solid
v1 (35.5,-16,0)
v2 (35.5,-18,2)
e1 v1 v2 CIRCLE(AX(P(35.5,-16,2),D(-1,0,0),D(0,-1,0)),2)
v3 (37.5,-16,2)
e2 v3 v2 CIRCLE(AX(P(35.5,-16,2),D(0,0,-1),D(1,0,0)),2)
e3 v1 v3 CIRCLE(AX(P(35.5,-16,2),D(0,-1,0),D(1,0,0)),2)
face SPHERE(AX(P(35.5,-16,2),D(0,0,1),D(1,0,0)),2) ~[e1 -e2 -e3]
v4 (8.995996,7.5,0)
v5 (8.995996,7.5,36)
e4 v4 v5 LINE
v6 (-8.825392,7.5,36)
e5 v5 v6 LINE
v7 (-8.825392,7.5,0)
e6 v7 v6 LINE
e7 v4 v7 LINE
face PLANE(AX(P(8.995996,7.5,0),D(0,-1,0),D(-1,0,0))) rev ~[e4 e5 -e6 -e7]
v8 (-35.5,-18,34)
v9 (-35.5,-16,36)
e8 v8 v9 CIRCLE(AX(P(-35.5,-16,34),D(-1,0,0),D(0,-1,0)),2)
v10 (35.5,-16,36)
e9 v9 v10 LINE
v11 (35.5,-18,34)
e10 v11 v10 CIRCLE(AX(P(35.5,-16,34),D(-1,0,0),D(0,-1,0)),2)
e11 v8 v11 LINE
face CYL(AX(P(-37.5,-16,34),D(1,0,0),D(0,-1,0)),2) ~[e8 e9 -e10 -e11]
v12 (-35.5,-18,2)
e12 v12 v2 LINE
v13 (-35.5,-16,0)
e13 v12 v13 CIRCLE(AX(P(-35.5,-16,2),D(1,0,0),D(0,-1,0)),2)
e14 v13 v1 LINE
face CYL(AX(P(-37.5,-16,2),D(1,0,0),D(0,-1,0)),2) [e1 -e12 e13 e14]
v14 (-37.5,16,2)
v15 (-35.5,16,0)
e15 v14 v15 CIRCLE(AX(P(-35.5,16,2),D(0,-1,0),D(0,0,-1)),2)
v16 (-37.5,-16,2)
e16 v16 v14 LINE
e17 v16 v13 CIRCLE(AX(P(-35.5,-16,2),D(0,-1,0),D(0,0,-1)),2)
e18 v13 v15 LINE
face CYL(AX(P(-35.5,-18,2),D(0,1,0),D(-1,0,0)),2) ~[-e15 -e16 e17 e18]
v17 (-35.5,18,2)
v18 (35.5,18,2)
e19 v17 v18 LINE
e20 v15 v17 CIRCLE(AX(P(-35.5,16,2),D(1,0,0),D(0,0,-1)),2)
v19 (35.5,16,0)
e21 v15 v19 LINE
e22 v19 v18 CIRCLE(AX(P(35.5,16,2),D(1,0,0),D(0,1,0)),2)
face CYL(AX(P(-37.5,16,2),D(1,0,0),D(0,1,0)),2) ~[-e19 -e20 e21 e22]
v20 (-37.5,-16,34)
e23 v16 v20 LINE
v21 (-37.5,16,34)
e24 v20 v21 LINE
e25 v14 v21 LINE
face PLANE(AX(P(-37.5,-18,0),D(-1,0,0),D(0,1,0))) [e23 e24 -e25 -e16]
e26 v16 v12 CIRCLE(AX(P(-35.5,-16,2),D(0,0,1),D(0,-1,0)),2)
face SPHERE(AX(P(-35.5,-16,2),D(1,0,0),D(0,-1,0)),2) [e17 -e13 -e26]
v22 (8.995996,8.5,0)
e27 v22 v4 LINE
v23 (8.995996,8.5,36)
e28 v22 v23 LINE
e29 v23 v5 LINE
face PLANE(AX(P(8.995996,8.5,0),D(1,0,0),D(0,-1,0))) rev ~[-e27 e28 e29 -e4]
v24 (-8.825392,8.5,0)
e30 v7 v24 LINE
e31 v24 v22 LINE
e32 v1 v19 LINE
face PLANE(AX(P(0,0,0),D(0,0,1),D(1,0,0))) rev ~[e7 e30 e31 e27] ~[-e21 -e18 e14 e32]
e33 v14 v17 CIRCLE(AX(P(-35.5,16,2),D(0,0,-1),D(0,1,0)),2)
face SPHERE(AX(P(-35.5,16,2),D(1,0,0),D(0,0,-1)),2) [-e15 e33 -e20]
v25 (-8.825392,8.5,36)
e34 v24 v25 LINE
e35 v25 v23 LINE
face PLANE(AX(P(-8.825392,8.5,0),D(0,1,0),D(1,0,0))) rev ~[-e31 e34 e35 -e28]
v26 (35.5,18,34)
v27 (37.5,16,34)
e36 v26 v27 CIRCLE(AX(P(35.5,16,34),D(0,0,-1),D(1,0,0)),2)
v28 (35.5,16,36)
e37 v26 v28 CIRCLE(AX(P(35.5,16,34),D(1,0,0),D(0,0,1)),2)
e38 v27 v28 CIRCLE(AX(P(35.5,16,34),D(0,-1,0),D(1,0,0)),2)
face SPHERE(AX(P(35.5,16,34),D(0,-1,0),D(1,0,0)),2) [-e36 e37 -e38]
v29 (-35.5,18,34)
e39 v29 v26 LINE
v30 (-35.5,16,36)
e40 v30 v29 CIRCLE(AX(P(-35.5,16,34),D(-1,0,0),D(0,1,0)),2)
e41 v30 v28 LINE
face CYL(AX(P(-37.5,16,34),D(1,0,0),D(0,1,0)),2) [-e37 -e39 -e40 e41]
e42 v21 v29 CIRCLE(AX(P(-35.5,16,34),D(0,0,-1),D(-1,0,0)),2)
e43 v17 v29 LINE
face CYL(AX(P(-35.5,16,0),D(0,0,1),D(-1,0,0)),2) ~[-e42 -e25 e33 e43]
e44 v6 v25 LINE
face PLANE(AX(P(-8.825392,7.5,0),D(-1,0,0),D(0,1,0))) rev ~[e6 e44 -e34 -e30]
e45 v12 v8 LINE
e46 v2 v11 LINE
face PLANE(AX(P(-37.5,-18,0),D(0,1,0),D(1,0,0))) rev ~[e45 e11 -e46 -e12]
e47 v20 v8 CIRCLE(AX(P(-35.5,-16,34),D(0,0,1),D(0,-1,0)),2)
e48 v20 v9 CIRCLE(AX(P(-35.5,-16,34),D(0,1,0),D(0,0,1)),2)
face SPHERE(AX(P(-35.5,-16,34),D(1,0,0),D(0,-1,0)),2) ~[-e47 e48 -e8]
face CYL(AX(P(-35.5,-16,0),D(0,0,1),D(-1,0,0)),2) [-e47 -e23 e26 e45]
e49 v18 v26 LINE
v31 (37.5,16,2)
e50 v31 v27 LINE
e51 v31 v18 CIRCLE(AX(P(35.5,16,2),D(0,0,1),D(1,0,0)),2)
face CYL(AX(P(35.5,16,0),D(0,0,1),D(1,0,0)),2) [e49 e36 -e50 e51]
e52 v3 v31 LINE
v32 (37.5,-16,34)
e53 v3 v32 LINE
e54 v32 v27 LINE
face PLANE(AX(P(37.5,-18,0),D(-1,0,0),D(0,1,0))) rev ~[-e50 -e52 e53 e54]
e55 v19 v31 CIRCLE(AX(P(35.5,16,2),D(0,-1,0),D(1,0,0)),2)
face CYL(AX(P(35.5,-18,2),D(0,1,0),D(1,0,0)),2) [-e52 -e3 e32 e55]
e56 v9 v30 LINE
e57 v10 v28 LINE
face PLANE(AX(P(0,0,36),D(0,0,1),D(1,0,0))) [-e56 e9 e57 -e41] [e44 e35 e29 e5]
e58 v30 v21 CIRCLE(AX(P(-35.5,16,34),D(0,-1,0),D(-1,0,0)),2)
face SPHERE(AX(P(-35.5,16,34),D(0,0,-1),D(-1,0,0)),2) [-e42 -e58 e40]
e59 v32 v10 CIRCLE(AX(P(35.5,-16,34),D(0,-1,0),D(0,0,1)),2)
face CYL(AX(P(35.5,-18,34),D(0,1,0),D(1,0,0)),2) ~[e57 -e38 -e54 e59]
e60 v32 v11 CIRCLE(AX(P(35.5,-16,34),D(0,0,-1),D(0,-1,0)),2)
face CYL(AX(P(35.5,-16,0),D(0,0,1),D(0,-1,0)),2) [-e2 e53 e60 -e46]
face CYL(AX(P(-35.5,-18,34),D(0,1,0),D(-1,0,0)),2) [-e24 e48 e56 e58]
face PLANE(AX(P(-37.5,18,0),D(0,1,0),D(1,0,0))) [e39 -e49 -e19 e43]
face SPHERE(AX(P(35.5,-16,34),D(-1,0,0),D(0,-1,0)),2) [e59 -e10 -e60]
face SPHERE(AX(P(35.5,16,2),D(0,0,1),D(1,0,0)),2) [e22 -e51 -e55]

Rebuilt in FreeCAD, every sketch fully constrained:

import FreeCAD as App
import Part
import Sketcher
from FreeCAD import Vector


def edges_at(feature, points):
    """Names of the edges that pass closest to the given points."""
    edges = feature.Shape.Edges
    near = lambda p: min(range(len(edges)), key=lambda i: edges[i].distToShape(Part.Vertex(*p))[0])
    return sorted({f"Edge{near(p) + 1}" for p in points})

doc = App.newDocument("Part")
body = doc.addObject("PartDesign::Body", "Body")

# Sketch on XY plane
sketch1 = doc.addObject("Sketcher::SketchObject", "Sketch")
body.addObject(sketch1)
sketch1.AttachmentSupport = (doc.XY_Plane, [""])
sketch1.MapMode = "FlatFace"
sketch1.addGeometry(Part.LineSegment(Vector(-37.5, 18, 0), Vector(-37.5, -18, 0)), False)
sketch1.addGeometry(Part.LineSegment(Vector(-37.5, -18, 0), Vector(37.5, -18, 0)), False)
sketch1.addGeometry(Part.LineSegment(Vector(37.5, -18, 0), Vector(37.5, 18, 0)), False)
sketch1.addGeometry(Part.LineSegment(Vector(37.5, 18, 0), Vector(-37.5, 18, 0)), False)
sketch1.addGeometry(Part.LineSegment(Vector(8.995996, 7.5, 0), Vector(-8.825392, 7.5, 0)), False)
sketch1.addGeometry(Part.LineSegment(Vector(-8.825392, 7.5, 0), Vector(-8.825392, 8.5, 0)), False)
sketch1.addGeometry(Part.LineSegment(Vector(-8.825392, 8.5, 0), Vector(8.995996, 8.5, 0)), False)
sketch1.addGeometry(Part.LineSegment(Vector(8.995996, 8.5, 0), Vector(8.995996, 7.5, 0)), False)
sketch1.addConstraint(Sketcher.Constraint("Coincident", 0, 2, 1, 1))
sketch1.addConstraint(Sketcher.Constraint("Coincident", 1, 2, 2, 1))
sketch1.addConstraint(Sketcher.Constraint("Coincident", 2, 2, 3, 1))
sketch1.addConstraint(Sketcher.Constraint("Coincident", 3, 2, 0, 1))
sketch1.addConstraint(Sketcher.Constraint("Coincident", 4, 2, 5, 1))
sketch1.addConstraint(Sketcher.Constraint("Coincident", 5, 2, 6, 1))
sketch1.addConstraint(Sketcher.Constraint("Coincident", 6, 2, 7, 1))
sketch1.addConstraint(Sketcher.Constraint("Coincident", 7, 2, 4, 1))
sketch1.addConstraint(Sketcher.Constraint("Vertical", 0))
sketch1.addConstraint(Sketcher.Constraint("Horizontal", 1))
sketch1.addConstraint(Sketcher.Constraint("Vertical", 2))
sketch1.addConstraint(Sketcher.Constraint("Horizontal", 3))
sketch1.addConstraint(Sketcher.Constraint("Horizontal", 4))
sketch1.addConstraint(Sketcher.Constraint("Vertical", 5))
sketch1.addConstraint(Sketcher.Constraint("Horizontal", 6))
sketch1.addConstraint(Sketcher.Constraint("Vertical", 7))
sketch1.addConstraint(Sketcher.Constraint("Symmetric", 0, 2, 2, 2, -1, 1))
sketch1.addConstraint(Sketcher.Constraint("DistanceX", 1, 1, 1, 2, 75.0))
sketch1.addConstraint(Sketcher.Constraint("DistanceY", 0, 2, 0, 1, 36.0))
sketch1.addConstraint(Sketcher.Constraint("DistanceY", 5, 1, 5, 2, 1.0))
sketch1.addConstraint(Sketcher.Constraint("DistanceY", -1, 1, 4, 2, 7.5))
sketch1.addConstraint(Sketcher.Constraint("DistanceX", 4, 2, 4, 1, 17.821388))
sketch1.addConstraint(Sketcher.Constraint("DistanceX", 4, 2, -1, 1, 8.825392))
pad1 = doc.addObject("PartDesign::Pad", "Pad")
body.addObject(pad1)
pad1.Profile = sketch1
pad1.Length = 36
doc.recompute()

fillet = doc.addObject("PartDesign::Fillet", "Fillet")
body.addObject(fillet)
fillet.Base = (pad1, edges_at(pad1, [
    (0, -18, 36),
    (37.5, -18, 18),
    (37.5, 0, 36),
    (37.5, 18, 18),
    (37.5, 0, 0),
    (0, -18, 0),
    (-37.5, -18, 18),
    (0, 18, 0),
    (-37.5, 0, 0),
    (-37.5, 18, 18),
    (-37.5, 0, 36),
    (0, 18, 36),
]))
fillet.Radius = 2

doc.recompute()
